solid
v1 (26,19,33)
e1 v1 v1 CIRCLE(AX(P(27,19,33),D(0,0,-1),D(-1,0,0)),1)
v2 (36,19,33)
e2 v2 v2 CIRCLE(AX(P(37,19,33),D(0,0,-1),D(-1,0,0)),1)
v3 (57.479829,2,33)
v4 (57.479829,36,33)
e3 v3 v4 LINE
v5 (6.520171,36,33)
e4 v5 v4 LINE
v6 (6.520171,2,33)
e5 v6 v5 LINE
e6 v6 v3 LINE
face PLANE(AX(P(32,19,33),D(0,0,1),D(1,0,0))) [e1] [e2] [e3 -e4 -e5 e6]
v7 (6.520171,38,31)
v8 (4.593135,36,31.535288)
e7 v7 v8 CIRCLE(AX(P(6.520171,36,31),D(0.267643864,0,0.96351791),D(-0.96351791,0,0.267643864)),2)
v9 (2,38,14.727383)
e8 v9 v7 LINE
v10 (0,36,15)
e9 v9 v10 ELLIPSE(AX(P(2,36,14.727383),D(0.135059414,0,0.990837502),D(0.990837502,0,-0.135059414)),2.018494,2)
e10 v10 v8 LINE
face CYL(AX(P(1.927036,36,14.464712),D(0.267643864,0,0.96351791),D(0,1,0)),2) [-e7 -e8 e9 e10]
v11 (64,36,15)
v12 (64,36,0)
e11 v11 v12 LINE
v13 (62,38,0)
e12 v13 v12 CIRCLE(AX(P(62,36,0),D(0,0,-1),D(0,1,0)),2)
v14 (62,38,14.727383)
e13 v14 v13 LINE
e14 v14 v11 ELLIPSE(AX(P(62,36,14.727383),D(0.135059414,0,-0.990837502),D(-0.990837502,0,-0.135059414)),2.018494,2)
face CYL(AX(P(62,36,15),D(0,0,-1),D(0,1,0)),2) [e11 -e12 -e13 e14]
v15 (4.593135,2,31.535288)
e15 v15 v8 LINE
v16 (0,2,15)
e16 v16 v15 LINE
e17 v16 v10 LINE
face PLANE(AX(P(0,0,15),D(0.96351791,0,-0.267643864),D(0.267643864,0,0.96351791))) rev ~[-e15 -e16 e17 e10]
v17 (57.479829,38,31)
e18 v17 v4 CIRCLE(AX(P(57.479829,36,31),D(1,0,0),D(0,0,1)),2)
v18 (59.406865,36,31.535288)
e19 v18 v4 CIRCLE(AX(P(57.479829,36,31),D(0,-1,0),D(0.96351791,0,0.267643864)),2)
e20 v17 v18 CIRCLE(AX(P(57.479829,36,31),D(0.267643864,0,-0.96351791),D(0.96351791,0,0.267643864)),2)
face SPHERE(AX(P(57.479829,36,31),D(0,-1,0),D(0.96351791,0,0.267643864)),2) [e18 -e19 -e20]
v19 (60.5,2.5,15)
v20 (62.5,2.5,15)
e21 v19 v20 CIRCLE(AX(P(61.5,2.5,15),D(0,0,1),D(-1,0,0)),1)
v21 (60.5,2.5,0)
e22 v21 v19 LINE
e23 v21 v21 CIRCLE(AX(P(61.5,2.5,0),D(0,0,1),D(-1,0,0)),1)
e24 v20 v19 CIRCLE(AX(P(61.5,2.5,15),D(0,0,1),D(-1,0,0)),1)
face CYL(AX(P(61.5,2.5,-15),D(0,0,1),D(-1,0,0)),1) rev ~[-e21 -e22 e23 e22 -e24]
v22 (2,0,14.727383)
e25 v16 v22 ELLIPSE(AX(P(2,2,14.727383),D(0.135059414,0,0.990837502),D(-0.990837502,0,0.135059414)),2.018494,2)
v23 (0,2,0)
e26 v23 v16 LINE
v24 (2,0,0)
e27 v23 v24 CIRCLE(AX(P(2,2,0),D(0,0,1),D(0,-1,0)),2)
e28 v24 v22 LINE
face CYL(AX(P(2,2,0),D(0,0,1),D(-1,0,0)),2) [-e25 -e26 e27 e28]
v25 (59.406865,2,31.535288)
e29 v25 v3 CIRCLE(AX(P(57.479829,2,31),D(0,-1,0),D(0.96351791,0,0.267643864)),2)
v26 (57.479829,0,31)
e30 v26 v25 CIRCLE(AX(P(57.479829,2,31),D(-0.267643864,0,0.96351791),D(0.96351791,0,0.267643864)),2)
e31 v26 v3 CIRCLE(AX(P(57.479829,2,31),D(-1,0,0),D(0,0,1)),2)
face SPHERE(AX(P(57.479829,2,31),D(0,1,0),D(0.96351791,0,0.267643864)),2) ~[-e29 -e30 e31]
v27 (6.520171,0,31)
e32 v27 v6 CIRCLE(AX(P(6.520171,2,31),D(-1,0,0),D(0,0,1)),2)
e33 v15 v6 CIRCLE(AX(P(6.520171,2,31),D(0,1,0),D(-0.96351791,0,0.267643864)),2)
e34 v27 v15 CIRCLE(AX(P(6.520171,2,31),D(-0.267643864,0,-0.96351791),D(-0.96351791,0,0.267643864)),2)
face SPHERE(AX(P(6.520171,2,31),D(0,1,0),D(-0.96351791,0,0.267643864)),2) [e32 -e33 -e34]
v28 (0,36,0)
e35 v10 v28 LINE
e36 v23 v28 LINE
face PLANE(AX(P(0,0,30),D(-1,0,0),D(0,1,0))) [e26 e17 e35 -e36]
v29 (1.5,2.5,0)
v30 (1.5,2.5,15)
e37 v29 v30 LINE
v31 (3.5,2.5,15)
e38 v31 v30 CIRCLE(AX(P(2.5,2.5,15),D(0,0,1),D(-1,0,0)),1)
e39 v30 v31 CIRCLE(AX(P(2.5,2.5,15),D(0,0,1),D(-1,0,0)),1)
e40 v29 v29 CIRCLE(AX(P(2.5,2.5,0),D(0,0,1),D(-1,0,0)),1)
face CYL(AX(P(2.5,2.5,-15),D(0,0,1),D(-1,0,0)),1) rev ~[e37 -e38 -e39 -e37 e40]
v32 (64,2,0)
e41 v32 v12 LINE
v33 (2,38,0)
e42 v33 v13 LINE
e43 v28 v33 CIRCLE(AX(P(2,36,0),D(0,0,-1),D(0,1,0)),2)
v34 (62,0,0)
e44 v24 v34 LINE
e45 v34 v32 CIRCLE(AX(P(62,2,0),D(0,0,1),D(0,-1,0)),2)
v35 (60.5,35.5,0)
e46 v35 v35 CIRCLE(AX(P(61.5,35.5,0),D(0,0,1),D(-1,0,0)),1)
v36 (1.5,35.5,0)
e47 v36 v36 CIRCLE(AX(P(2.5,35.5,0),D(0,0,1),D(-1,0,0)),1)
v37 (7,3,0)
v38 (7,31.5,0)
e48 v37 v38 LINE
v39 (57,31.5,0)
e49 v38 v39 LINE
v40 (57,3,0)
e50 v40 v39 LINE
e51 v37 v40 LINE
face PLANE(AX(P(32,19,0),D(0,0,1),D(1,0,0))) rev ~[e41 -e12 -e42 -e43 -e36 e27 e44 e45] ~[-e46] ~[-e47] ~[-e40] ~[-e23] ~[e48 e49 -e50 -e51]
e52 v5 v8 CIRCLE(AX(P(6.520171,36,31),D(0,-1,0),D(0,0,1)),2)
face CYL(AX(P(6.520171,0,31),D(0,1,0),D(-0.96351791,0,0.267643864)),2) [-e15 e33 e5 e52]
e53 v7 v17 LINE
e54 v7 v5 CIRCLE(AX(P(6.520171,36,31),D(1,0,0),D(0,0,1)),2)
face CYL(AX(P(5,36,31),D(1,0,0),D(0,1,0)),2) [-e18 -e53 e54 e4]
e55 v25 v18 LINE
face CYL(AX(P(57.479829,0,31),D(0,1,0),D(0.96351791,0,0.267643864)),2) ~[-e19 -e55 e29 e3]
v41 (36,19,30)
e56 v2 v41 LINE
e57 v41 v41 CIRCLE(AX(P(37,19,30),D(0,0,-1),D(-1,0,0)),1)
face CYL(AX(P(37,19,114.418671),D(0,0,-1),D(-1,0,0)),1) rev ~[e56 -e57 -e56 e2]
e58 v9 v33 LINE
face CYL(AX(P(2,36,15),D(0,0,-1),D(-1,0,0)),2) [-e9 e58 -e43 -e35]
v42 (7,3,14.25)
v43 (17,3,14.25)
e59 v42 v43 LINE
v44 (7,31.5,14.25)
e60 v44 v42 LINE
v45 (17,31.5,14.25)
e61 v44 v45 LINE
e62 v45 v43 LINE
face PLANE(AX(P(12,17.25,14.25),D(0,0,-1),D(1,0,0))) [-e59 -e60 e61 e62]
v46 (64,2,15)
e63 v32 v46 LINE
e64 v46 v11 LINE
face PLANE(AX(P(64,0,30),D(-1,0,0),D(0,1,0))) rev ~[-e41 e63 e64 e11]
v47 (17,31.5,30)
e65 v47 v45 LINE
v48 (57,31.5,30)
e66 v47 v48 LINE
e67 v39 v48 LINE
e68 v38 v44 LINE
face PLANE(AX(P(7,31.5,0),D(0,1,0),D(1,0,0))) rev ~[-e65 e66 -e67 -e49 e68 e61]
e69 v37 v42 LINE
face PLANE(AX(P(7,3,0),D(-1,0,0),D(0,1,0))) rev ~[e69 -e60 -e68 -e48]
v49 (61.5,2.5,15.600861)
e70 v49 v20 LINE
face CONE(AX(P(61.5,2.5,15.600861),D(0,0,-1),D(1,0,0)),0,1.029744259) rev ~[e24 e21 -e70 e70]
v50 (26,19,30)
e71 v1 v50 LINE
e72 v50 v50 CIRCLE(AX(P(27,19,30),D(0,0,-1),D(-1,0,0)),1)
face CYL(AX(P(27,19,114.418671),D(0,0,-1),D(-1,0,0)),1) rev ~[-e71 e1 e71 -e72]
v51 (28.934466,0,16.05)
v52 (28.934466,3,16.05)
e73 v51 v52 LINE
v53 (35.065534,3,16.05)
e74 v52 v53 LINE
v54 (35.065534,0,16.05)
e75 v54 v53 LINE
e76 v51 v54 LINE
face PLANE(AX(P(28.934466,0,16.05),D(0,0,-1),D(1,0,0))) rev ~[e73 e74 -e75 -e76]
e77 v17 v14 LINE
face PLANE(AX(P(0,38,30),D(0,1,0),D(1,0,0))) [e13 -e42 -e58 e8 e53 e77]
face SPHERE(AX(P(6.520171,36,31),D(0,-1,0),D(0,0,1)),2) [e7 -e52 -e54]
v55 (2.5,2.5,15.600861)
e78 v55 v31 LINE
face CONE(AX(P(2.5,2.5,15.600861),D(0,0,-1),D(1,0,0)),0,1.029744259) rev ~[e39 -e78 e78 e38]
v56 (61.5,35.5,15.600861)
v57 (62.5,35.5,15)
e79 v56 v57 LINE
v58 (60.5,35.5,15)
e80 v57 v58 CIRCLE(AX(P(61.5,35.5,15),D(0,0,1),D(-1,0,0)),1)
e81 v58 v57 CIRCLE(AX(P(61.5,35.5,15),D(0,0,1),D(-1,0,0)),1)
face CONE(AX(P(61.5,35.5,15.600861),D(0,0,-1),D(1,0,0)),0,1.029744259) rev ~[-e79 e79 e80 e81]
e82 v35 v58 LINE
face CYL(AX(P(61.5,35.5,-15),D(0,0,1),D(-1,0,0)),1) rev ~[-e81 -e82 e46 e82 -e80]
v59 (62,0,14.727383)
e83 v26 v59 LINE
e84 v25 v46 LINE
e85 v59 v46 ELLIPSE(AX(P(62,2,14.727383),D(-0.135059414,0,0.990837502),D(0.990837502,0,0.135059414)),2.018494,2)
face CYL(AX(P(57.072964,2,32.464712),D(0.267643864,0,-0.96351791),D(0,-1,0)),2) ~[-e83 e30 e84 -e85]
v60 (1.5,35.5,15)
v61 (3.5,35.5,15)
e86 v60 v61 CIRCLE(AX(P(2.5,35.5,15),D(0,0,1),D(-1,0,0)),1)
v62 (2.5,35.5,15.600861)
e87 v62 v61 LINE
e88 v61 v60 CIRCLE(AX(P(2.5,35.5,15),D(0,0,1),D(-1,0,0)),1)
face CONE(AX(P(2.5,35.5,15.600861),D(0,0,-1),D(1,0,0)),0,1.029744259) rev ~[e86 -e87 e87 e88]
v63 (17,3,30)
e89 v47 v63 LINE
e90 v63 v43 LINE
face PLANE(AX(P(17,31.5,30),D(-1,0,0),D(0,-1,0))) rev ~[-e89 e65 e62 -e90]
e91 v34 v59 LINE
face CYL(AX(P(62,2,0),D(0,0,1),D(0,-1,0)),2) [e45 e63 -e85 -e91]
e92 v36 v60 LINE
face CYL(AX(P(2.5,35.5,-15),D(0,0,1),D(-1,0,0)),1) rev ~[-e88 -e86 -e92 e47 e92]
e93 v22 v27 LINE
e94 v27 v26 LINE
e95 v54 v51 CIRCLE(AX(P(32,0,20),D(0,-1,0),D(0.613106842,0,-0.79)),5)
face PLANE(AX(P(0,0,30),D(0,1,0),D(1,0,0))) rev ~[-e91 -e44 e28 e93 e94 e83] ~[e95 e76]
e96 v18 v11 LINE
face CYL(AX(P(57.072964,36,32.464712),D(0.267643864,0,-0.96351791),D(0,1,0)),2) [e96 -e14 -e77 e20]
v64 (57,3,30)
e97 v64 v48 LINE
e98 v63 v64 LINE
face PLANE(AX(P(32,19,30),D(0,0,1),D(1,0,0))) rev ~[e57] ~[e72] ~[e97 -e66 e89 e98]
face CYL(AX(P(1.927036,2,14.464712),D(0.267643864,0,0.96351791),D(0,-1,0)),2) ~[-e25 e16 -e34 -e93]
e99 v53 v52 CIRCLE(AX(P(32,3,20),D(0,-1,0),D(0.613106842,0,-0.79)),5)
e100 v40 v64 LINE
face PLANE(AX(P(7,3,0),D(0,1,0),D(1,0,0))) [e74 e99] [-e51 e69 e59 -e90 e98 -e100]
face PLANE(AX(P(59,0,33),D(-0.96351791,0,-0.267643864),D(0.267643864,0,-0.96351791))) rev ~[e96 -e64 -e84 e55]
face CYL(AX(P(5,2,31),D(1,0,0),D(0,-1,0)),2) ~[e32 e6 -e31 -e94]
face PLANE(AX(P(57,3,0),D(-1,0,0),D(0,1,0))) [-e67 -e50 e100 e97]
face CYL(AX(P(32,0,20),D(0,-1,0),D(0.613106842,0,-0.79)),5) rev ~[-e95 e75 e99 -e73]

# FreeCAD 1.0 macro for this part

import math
import FreeCAD as App
import Part
import Sketcher

V = App.Vector
Q = App.Units.Quantity


def edges_at(feature, points):
    """Names of the edges that pass closest to the given points."""
    edges = feature.Shape.Edges
    near = lambda p: min(range(len(edges)), key=lambda i: edges[i].distToShape(Part.Vertex(*p))[0])
    return sorted({f"Edge{near(p) + 1}" for p in points})

doc = App.newDocument("Part")
body = doc.addObject("PartDesign::Body", "Body")

sketch1 = body.newObject("Sketcher::SketchObject", "Sketch")
sketch1.AttachmentSupport = (doc.getObject("XY_Plane"), [""])
sketch1.MapMode = "FlatFace"
sketch1.addGeometry(Part.LineSegment(V(0, 38, 0), V(0, 0, 0)), False)
sketch1.addGeometry(Part.LineSegment(V(0, 0, 0), V(64, 0, 0)), False)
sketch1.addGeometry(Part.LineSegment(V(64, 0, 0), V(64, 38, 0)), False)
sketch1.addGeometry(Part.LineSegment(V(64, 38, 0), V(0, 38, 0)), False)
sketch1.addGeometry(Part.LineSegment(V(57, 3, 0), V(7, 3, 0)), False)
sketch1.addGeometry(Part.LineSegment(V(7, 3, 0), V(7, 32, 0)), False)
sketch1.addGeometry(Part.LineSegment(V(7, 32, 0), V(57, 32, 0)), False)
sketch1.addGeometry(Part.LineSegment(V(57, 32, 0), V(57, 3, 0)), False)
sketch1.addConstraint(Sketcher.Constraint("Coincident", 0, 2, 1, 1))
sketch1.addConstraint(Sketcher.Constraint("Coincident", 1, 2, 2, 1))
sketch1.addConstraint(Sketcher.Constraint("Coincident", 2, 2, 3, 1))
sketch1.addConstraint(Sketcher.Constraint("Coincident", 3, 2, 0, 1))
sketch1.addConstraint(Sketcher.Constraint("Coincident", 4, 2, 5, 1))
sketch1.addConstraint(Sketcher.Constraint("Coincident", 5, 2, 6, 1))
sketch1.addConstraint(Sketcher.Constraint("Coincident", 6, 2, 7, 1))
sketch1.addConstraint(Sketcher.Constraint("Coincident", 7, 2, 4, 1))
sketch1.addConstraint(Sketcher.Constraint("Vertical", 0))
sketch1.addConstraint(Sketcher.Constraint("Horizontal", 1))
sketch1.addConstraint(Sketcher.Constraint("Vertical", 2))
sketch1.addConstraint(Sketcher.Constraint("Horizontal", 3))
sketch1.addConstraint(Sketcher.Constraint("Horizontal", 4))
sketch1.addConstraint(Sketcher.Constraint("Vertical", 5))
sketch1.addConstraint(Sketcher.Constraint("Horizontal", 6))
sketch1.addConstraint(Sketcher.Constraint("Vertical", 7))
sketch1.addConstraint(Sketcher.Constraint("Coincident", 0, 2, -1, 1))
sketch1.addConstraint(Sketcher.Constraint("DistanceX", 1, 1, 1, 2, Q("64 mm")))
sketch1.addConstraint(Sketcher.Constraint("DistanceX", 4, 2, 4, 1, Q("50 mm")))
sketch1.addConstraint(Sketcher.Constraint("DistanceY", 0, 2, 0, 1, Q("38 mm")))
sketch1.addConstraint(Sketcher.Constraint("DistanceY", 5, 1, 5, 2, Q("28.5 mm")))
sketch1.addConstraint(Sketcher.Constraint("DistanceX", -1, 1, 4, 2, Q("7 mm")))
sketch1.addConstraint(Sketcher.Constraint("DistanceY", -1, 1, 4, 2, Q("3 mm")))
pad1 = body.newObject("PartDesign::Pad", "Pad")
pad1.Profile = sketch1
pad1.Length = 30

sketch2 = body.newObject("Sketcher::SketchObject", "Sketch001")
sketch2.AttachmentSupport = (doc.getObject("XY_Plane"), [""])
sketch2.MapMode = "FlatFace"
sketch2.addGeometry(Part.Circle(V(2.5, 2.5, 0), V(0, 0, 1), 1), False)
sketch2.addGeometry(Part.Circle(V(61.5, 2.5, 0), V(0, 0, 1), 1), False)
sketch2.addGeometry(Part.Circle(V(61.5, 35.5, 0), V(0, 0, 1), 1), False)
sketch2.addGeometry(Part.Circle(V(2.5, 35.5, 0), V(0, 0, 1), 1), False)
sketch2.addConstraint(Sketcher.Constraint("Equal", 0, 1))
sketch2.addConstraint(Sketcher.Constraint("Equal", 1, 2))
sketch2.addConstraint(Sketcher.Constraint("Equal", 2, 3))
sketch2.addConstraint(Sketcher.Constraint("Horizontal", 0, 3, 1, 3))
sketch2.addConstraint(Sketcher.Constraint("Horizontal", 2, 3, 3, 3))
sketch2.addConstraint(Sketcher.Constraint("Vertical", 1, 3, 2, 3))
sketch2.addConstraint(Sketcher.Constraint("Vertical", 0, 3, 3, 3))
sketch2.addConstraint(Sketcher.Constraint("Diameter", 0, Q("2 mm")))
sketch2.addConstraint(Sketcher.Constraint("DistanceX", 0, 3, 1, 3, Q("59 mm")))
sketch2.addConstraint(Sketcher.Constraint("DistanceY", 1, 3, 2, 3, Q("33 mm")))
sketch2.addConstraint(Sketcher.Constraint("DistanceX", -1, 1, 0, 3, Q("2.5 mm")))
sketch2.addConstraint(Sketcher.Constraint("DistanceY", -1, 1, 0, 3, Q("2.5 mm")))
doc.recompute()
hole = body.newObject("PartDesign::Hole", "Hole")
hole.Profile = sketch2
hole.ThreadType = "None"
hole.Diameter = 2
hole.DepthType = "Dimension"
hole.Depth = 15
hole.DrillPoint = "Angled"
hole.DrillPointAngle = 118
hole.Reversed = True

sketch3 = body.newObject("Sketcher::SketchObject", "Sketch002")
sketch3.AttachmentSupport = (doc.getObject("XY_Plane"), [""])
sketch3.MapMode = "FlatFace"
sketch3.AttachmentOffset = App.Placement(V(0, 0, 30), App.Rotation())
sketch3.addGeometry(Part.LineSegment(V(0, 38, 0), V(0, 0, 0)), False)
sketch3.addGeometry(Part.LineSegment(V(0, 0, 0), V(64, 0, 0)), False)
sketch3.addGeometry(Part.LineSegment(V(64, 0, 0), V(64, 38, 0)), False)
sketch3.addGeometry(Part.LineSegment(V(64, 38, 0), V(0, 38, 0)), False)
sketch3.addConstraint(Sketcher.Constraint("Coincident", 0, 2, 1, 1))
sketch3.addConstraint(Sketcher.Constraint("Coincident", 1, 2, 2, 1))
sketch3.addConstraint(Sketcher.Constraint("Coincident", 2, 2, 3, 1))
sketch3.addConstraint(Sketcher.Constraint("Coincident", 3, 2, 0, 1))
sketch3.addConstraint(Sketcher.Constraint("Vertical", 0))
sketch3.addConstraint(Sketcher.Constraint("Horizontal", 1))
sketch3.addConstraint(Sketcher.Constraint("Vertical", 2))
sketch3.addConstraint(Sketcher.Constraint("Horizontal", 3))
sketch3.addConstraint(Sketcher.Constraint("Coincident", 0, 2, -1, 1))
sketch3.addConstraint(Sketcher.Constraint("DistanceX", 1, 1, 1, 2, Q("64 mm")))
sketch3.addConstraint(Sketcher.Constraint("DistanceY", 0, 2, 0, 1, Q("38 mm")))
pad2 = body.newObject("PartDesign::Pad", "Pad001")
pad2.Profile = sketch3
pad2.Length = 3

sketch4 = body.newObject("Sketcher::SketchObject", "Sketch003")
sketch4.AttachmentSupport = (doc.getObject("XY_Plane"), [""])
sketch4.MapMode = "FlatFace"
sketch4.AttachmentOffset = App.Placement(V(0, 0, 30), App.Rotation())
sketch4.addGeometry(Part.LineSegment(V(7, 3, 0), V(7, 32, 0)), False)
sketch4.addGeometry(Part.LineSegment(V(7, 32, 0), V(17, 32, 0)), False)
sketch4.addGeometry(Part.LineSegment(V(17, 32, 0), V(17, 3, 0)), False)
sketch4.addGeometry(Part.LineSegment(V(17, 3, 0), V(7, 3, 0)), False)
sketch4.addConstraint(Sketcher.Constraint("Coincident", 0, 2, 1, 1))
sketch4.addConstraint(Sketcher.Constraint("Coincident", 1, 2, 2, 1))
sketch4.addConstraint(Sketcher.Constraint("Coincident", 2, 2, 3, 1))
sketch4.addConstraint(Sketcher.Constraint("Coincident", 3, 2, 0, 1))
sketch4.addConstraint(Sketcher.Constraint("Vertical", 0))
sketch4.addConstraint(Sketcher.Constraint("Horizontal", 1))
sketch4.addConstraint(Sketcher.Constraint("Vertical", 2))
sketch4.addConstraint(Sketcher.Constraint("Horizontal", 3))
sketch4.addConstraint(Sketcher.Constraint("DistanceX", 1, 1, 1, 2, Q("10 mm")))
sketch4.addConstraint(Sketcher.Constraint("DistanceY", 0, 1, 0, 2, Q("28.5 mm")))
sketch4.addConstraint(Sketcher.Constraint("DistanceX", -1, 1, 0, 2, Q("7 mm")))
sketch4.addConstraint(Sketcher.Constraint("DistanceY", -1, 1, 2, 2, Q("3 mm")))
pad3 = body.newObject("PartDesign::Pad", "Pad002")
pad3.Profile = sketch4
pad3.Length = 15.75
pad3.Reversed = True

sketch5 = body.newObject("Sketcher::SketchObject", "Sketch004")
sketch5.AttachmentSupport = (doc.getObject("XZ_Plane"), [""])
sketch5.MapMode = "FlatFace"
sketch5.addGeometry(Part.LineSegment(V(0, 33, 0), V(0, 15, 0)), False)
sketch5.addGeometry(Part.LineSegment(V(0, 15, 0), V(5, 33, 0)), False)
sketch5.addGeometry(Part.LineSegment(V(5, 33, 0), V(0, 33, 0)), False)
sketch5.addGeometry(Part.LineSegment(V(64, 33, 0), V(59, 33, 0)), False)
sketch5.addGeometry(Part.LineSegment(V(59, 33, 0), V(64, 15, 0)), False)
sketch5.addGeometry(Part.LineSegment(V(64, 15, 0), V(64, 33, 0)), False)
sketch5.addConstraint(Sketcher.Constraint("Coincident", 0, 2, 1, 1))
sketch5.addConstraint(Sketcher.Constraint("Coincident", 1, 2, 2, 1))
sketch5.addConstraint(Sketcher.Constraint("Coincident", 2, 2, 0, 1))
sketch5.addConstraint(Sketcher.Constraint("Coincident", 3, 2, 4, 1))
sketch5.addConstraint(Sketcher.Constraint("Coincident", 4, 2, 5, 1))
sketch5.addConstraint(Sketcher.Constraint("Coincident", 5, 2, 3, 1))
sketch5.addConstraint(Sketcher.Constraint("Vertical", 0))
sketch5.addConstraint(Sketcher.Constraint("Horizontal", 2))
sketch5.addConstraint(Sketcher.Constraint("Horizontal", 3))
sketch5.addConstraint(Sketcher.Constraint("Vertical", 5))
sketch5.addConstraint(Sketcher.Constraint("PointOnObject", 0, 2, -2))
sketch5.addConstraint(Sketcher.Constraint("Horizontal", 2, 2, 3, 2))
sketch5.addConstraint(Sketcher.Constraint("Horizontal", 0, 2, 4, 2))
sketch5.addConstraint(Sketcher.Constraint("Equal", 2, 3))
sketch5.addConstraint(Sketcher.Constraint("DistanceX", 2, 2, 2, 1, Q("5 mm")))
sketch5.addConstraint(Sketcher.Constraint("DistanceY", 0, 2, 0, 1, Q("18 mm")))
sketch5.addConstraint(Sketcher.Constraint("DistanceY", -1, 1, 0, 2, Q("15 mm")))
sketch5.addConstraint(Sketcher.Constraint("DistanceX", -1, 1, 3, 2, Q("59 mm")))
pocket1 = body.newObject("PartDesign::Pocket", "Pocket")
pocket1.Profile = sketch5
pocket1.Type = "ThroughAll"
doc.recompute()

fillet = body.newObject("PartDesign::Fillet", "Fillet")
fillet.Base = (pocket1, edges_at(pocket1, [
    (0, 0, 7.5),
    (2.5, 0, 24),
    (61.5, 0, 24),
    (64, 0, 7.5),
    (2.5, 38, 24),
    (0, 38, 7.5),
    (64, 38, 7.5),
    (61.5, 38, 24),
    (32, 0, 33),
    (5, 19, 33),
    (32, 38, 33),
    (59, 19, 33),
]))
fillet.Radius = 2

sketch6 = body.newObject("Sketcher::SketchObject", "Sketch005")
sketch6.AttachmentSupport = (doc.getObject("XZ_Plane"), [""])
sketch6.MapMode = "FlatFace"
sketch6.addGeometry(Part.LineSegment(V(29, 16, 0), V(35, 16, 0)), False)
sketch6.addGeometry(Part.ArcOfCircle(Part.Circle(V(32, 20, 0), V(0, 0, 1), 5), math.radians(-52), math.radians(232)), False)
sketch6.addConstraint(Sketcher.Constraint("Coincident", 0, 1, 1, 2))
sketch6.addConstraint(Sketcher.Constraint("Coincident", 1, 1, 0, 2))
sketch6.addConstraint(Sketcher.Constraint("Horizontal", 0))
sketch6.addConstraint(Sketcher.Constraint("Radius", 1, Q("5 mm")))
sketch6.addConstraint(Sketcher.Constraint("DistanceX", -1, 1, 1, 3, Q("32 mm")))
sketch6.addConstraint(Sketcher.Constraint("DistanceY", -1, 1, 1, 3, Q("20 mm")))
sketch6.addConstraint(Sketcher.Constraint("DistanceY", -1, 1, 0, 1, Q("16.05 mm")))
pocket2 = body.newObject("PartDesign::Pocket", "Pocket001")
pocket2.Profile = sketch6
pocket2.Length = 3

sketch7 = body.newObject("Sketcher::SketchObject", "Sketch006")
sketch7.AttachmentSupport = (doc.getObject("XY_Plane"), [""])
sketch7.MapMode = "FlatFace"
sketch7.AttachmentOffset = App.Placement(V(0, 0, 33), App.Rotation())
sketch7.addGeometry(Part.Circle(V(27, 19, 0), V(0, 0, 1), 1), False)
sketch7.addGeometry(Part.Circle(V(37, 19, 0), V(0, 0, 1), 1), False)
sketch7.addConstraint(Sketcher.Constraint("Equal", 0, 1))
sketch7.addConstraint(Sketcher.Constraint("Horizontal", 0, 3, 1, 3))
sketch7.addConstraint(Sketcher.Constraint("Diameter", 0, Q("2 mm")))
sketch7.addConstraint(Sketcher.Constraint("DistanceX", -1, 1, 0, 3, Q("27 mm")))
sketch7.addConstraint(Sketcher.Constraint("DistanceY", -1, 1, 0, 3, Q("19 mm")))
sketch7.addConstraint(Sketcher.Constraint("DistanceX", -1, 1, 1, 3, Q("37 mm")))
doc.recompute()
hole2 = body.newObject("PartDesign::Hole", "Hole001")
hole2.Profile = sketch7
hole2.ThreadType = "None"
hole2.Diameter = 2
hole2.DepthType = "ThroughAll"

doc.recompute()
